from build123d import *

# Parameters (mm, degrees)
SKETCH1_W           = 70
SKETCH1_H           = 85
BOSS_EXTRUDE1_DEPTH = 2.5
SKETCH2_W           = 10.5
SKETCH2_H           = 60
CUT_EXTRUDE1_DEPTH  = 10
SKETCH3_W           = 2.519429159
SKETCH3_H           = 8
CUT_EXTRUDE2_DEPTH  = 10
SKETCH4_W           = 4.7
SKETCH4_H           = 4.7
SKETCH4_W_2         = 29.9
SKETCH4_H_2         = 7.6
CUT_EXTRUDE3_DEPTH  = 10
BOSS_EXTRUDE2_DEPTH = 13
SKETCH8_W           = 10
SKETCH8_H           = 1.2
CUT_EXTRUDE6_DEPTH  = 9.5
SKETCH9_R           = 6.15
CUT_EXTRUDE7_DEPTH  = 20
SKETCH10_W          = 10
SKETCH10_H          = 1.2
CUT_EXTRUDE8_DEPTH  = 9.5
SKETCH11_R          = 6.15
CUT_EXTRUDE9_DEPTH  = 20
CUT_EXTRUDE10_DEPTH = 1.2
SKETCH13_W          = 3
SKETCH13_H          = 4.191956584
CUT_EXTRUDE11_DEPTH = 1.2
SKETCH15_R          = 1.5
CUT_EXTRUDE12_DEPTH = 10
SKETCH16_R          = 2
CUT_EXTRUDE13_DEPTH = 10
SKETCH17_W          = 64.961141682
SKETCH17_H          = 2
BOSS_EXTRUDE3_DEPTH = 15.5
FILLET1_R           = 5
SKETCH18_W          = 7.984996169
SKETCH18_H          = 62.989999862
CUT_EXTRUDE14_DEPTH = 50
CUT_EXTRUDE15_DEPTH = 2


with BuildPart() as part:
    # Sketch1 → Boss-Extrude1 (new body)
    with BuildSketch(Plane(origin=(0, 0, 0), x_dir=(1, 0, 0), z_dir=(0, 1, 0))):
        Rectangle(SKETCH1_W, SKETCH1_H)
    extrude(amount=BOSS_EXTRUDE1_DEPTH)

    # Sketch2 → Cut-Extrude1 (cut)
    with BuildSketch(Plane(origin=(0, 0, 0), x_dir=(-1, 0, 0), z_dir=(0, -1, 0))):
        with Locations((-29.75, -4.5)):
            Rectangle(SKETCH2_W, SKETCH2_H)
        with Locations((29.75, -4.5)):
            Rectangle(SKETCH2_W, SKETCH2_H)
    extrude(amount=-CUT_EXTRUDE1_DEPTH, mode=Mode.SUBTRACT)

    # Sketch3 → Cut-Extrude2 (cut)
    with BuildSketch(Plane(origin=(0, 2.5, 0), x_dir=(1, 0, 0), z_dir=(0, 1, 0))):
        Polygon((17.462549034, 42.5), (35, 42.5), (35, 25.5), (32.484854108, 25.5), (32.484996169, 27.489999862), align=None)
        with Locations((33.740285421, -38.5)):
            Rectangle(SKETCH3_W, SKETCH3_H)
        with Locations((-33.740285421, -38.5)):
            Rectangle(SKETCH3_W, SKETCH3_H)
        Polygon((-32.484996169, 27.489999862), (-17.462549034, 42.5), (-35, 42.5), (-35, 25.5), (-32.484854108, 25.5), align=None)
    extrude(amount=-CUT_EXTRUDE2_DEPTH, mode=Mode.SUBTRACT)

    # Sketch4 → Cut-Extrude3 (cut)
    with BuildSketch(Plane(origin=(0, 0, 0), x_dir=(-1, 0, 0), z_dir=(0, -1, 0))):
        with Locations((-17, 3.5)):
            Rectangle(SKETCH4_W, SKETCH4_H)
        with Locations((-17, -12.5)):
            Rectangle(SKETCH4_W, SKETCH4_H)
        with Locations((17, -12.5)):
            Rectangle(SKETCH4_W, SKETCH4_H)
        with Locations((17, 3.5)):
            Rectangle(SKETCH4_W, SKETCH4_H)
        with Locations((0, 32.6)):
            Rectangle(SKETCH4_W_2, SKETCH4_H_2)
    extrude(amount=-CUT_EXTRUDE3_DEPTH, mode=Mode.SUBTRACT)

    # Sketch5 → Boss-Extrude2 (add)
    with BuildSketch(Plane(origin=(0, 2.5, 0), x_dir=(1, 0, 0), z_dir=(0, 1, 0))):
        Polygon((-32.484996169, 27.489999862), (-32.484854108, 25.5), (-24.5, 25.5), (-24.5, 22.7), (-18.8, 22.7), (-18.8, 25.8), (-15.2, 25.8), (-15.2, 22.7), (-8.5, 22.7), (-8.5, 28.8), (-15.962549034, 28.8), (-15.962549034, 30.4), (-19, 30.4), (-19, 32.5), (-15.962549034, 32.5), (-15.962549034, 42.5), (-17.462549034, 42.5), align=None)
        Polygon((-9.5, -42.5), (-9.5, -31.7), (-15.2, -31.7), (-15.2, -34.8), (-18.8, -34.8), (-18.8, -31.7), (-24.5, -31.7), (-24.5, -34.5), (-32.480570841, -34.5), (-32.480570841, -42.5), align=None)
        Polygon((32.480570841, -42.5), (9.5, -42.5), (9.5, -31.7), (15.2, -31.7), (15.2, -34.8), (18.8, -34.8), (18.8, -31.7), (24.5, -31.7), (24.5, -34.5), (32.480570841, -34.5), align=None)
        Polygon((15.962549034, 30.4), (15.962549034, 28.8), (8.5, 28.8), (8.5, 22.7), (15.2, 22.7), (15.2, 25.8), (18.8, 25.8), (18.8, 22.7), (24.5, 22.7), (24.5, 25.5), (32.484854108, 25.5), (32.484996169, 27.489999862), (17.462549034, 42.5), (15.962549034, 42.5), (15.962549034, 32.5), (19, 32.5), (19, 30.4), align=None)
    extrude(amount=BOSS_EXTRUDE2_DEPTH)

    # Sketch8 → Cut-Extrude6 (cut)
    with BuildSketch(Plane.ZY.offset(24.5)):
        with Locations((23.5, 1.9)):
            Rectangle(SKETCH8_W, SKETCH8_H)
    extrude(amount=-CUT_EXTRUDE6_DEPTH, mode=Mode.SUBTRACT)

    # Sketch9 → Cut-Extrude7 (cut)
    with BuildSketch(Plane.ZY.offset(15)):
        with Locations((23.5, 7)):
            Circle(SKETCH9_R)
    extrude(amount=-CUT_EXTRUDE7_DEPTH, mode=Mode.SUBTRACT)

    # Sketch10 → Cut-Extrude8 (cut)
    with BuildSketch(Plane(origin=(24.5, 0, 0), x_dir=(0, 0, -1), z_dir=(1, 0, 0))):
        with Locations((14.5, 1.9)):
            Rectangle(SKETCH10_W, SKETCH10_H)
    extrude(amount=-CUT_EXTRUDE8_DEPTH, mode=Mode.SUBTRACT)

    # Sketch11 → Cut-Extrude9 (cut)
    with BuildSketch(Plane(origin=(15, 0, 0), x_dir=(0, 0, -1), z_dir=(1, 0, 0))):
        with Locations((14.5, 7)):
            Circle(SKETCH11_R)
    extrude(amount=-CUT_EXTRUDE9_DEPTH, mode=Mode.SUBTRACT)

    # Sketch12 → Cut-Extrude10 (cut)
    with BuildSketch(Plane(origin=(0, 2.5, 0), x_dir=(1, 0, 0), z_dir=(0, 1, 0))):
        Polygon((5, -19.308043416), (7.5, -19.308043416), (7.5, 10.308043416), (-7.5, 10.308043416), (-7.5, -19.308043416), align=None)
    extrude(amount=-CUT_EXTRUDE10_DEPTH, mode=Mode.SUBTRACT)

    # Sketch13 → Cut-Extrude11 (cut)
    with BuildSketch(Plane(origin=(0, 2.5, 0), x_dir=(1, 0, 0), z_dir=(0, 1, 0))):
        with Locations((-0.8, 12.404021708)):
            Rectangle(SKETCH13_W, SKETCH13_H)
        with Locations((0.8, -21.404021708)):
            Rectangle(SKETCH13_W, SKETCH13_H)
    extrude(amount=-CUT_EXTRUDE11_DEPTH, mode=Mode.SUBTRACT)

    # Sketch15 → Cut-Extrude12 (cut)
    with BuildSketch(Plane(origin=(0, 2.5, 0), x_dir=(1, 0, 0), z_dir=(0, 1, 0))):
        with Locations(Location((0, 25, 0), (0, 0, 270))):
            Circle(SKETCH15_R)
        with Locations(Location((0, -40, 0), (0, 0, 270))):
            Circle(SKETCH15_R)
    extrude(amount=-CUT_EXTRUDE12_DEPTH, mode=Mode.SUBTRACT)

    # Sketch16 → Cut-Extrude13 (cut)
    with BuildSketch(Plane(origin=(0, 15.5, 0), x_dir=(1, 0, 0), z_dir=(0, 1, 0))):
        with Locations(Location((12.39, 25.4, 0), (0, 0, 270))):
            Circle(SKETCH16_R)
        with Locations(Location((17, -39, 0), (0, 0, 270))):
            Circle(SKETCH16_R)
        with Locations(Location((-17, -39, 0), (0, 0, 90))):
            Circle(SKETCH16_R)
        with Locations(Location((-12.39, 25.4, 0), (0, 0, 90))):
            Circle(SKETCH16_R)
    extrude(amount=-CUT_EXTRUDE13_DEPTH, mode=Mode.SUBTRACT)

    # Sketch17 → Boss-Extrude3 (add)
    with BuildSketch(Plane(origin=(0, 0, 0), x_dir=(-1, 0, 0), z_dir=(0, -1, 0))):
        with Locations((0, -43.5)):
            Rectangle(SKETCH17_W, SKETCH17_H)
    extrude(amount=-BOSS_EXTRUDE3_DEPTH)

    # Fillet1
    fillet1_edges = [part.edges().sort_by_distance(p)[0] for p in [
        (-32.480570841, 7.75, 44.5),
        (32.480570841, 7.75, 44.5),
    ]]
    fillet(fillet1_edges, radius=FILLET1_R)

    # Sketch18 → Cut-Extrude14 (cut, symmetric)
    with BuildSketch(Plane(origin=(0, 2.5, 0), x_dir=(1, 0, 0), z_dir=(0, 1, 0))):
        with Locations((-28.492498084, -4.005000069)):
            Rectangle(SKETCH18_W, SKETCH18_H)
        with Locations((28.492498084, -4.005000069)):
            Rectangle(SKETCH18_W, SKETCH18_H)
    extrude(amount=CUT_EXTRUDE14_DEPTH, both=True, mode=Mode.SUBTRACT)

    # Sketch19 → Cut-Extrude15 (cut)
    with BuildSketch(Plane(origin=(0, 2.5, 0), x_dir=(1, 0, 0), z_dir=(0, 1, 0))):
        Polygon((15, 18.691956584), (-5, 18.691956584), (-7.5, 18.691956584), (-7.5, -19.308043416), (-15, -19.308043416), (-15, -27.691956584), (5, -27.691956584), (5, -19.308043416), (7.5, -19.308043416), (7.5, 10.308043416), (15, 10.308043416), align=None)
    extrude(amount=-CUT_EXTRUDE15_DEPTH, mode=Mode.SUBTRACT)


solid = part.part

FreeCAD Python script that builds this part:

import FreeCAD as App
import Part
import Sketcher
from FreeCAD import Vector
Q = App.Units.Quantity


def edges_at(feature, points):
    """Names of the edges that pass closest to the given points."""
    edges = feature.Shape.Edges
    near = lambda p: min(range(len(edges)), key=lambda i: edges[i].distToShape(Part.Vertex(*p))[0])
    return sorted({f"Edge{near(p) + 1}" for p in points})


def add_polygon(sketch, points):
    """Adds a closed chain of lines whose ends are joined by coincident constraints."""
    first, n = sketch.GeometryCount, len(points)
    for a, b in zip(points, points[1:] + points[:1]):
        sketch.addGeometry(Part.LineSegment(App.Vector(*a, 0), App.Vector(*b, 0)), False)
    for i in range(n):
        sketch.addConstraint(Sketcher.Constraint("Coincident", first + i, 2, first + (i + 1) % n, 1))

doc = App.newDocument("Part")
body = doc.addObject("PartDesign::Body", "Body")

# Sketch on XZ plane
sketch1 = doc.addObject("Sketcher::SketchObject", "Sketch")
body.addObject(sketch1)
sketch1.AttachmentSupport = (doc.XZ_Plane, [""])
sketch1.MapMode = "FlatFace"
add_polygon(sketch1, [(-35, -42), (-35, 42), (35, 42), (35, -42)])  # lines 0-3
sketch1.addConstraint(Sketcher.Constraint("Vertical", 0))
sketch1.addConstraint(Sketcher.Constraint("Horizontal", 1))
sketch1.addConstraint(Sketcher.Constraint("Vertical", 2))
sketch1.addConstraint(Sketcher.Constraint("Horizontal", 3))
sketch1.addConstraint(Sketcher.Constraint("Symmetric", 0, 2, 2, 2, -1, 1))
sketch1.addConstraint(Sketcher.Constraint("DistanceX", 1, 1, 1, 2, Q("70 mm")))
sketch1.addConstraint(Sketcher.Constraint("DistanceY", 0, 1, 0, 2, Q("85 mm")))
pad1 = doc.addObject("PartDesign::Pad", "Pad")
body.addObject(pad1)
pad1.Profile = sketch1
pad1.Length = 2.5
pad1.Reversed = True

# Sketch on XZ plane
sketch2 = doc.addObject("Sketcher::SketchObject", "Sketch001")
body.addObject(sketch2)
sketch2.AttachmentSupport = (doc.XZ_Plane, [""])
sketch2.MapMode = "FlatFace"
add_polygon(sketch2, [(35, -26), (35, 34), (24, 34), (24, -26)])  # lines 0-3
add_polygon(sketch2, [(-24, -26), (-24, 34), (-35, 34), (-35, -26)])  # lines 4-7
sketch2.addConstraint(Sketcher.Constraint("Vertical", 0))
sketch2.addConstraint(Sketcher.Constraint("Horizontal", 1))
sketch2.addConstraint(Sketcher.Constraint("Vertical", 2))
sketch2.addConstraint(Sketcher.Constraint("Horizontal", 3))
sketch2.addConstraint(Sketcher.Constraint("Vertical", 4))
sketch2.addConstraint(Sketcher.Constraint("Horizontal", 5))
sketch2.addConstraint(Sketcher.Constraint("Vertical", 6))
sketch2.addConstraint(Sketcher.Constraint("Horizontal", 7))
sketch2.addConstraint(Sketcher.Constraint("Symmetric", 1, 2, 4, 2, -2))
sketch2.addConstraint(Sketcher.Constraint("Symmetric", 3, 2, 6, 2, -2))
sketch2.addConstraint(Sketcher.Constraint("DistanceY", 0, 1, 0, 2, Q("60 mm")))
sketch2.addConstraint(Sketcher.Constraint("DistanceX", 1, 2, 1, 1, Q("10.5 mm")))
sketch2.addConstraint(Sketcher.Constraint("DistanceX", -1, 1, 0, 2, Q("35 mm")))
sketch2.addConstraint(Sketcher.Constraint("DistanceY", -1, 1, 0, 2, Q("34.5 mm")))
pocket1 = doc.addObject("PartDesign::Pocket", "Pocket")
body.addObject(pocket1)
pocket1.Profile = sketch2
pocket1.Length = 10

# Sketch on XZ plane
sketch3 = doc.addObject("Sketcher::SketchObject", "Sketch002")
body.addObject(sketch3)
sketch3.AttachmentSupport = (doc.XZ_Plane, [""])
sketch3.MapMode = "FlatFace"
sketch3.AttachmentOffset = App.Placement(Vector(0, 0, -2.5), App.Rotation())
add_polygon(sketch3, [(35, -42.5), (17.5, -42.5), (32.5, -27.5), (32.5, -25.5), (35, -25.5)])  # lines 0-4
add_polygon(sketch3, [(32.5, 34.5), (32.5, 42.5), (35, 42.5), (35, 34.5)])  # lines 5-8
add_polygon(sketch3, [(-35, 34.5), (-35, 42.5), (-32.5, 42.5), (-32.5, 34.5)])  # lines 9-12
add_polygon(sketch3, [(-32.5, -27.5), (-17.5, -42.5), (-35, -42.5), (-35, -25.5), (-32.5, -25.5)])  # lines 13-17
sketch3.addConstraint(Sketcher.Constraint("Horizontal", 0))
sketch3.addConstraint(Sketcher.Constraint("Horizontal", 3))
sketch3.addConstraint(Sketcher.Constraint("Vertical", 4))
sketch3.addConstraint(Sketcher.Constraint("Vertical", 5))
sketch3.addConstraint(Sketcher.Constraint("Horizontal", 6))
sketch3.addConstraint(Sketcher.Constraint("Vertical", 7))
sketch3.addConstraint(Sketcher.Constraint("Horizontal", 8))
sketch3.addConstraint(Sketcher.Constraint("Vertical", 9))
sketch3.addConstraint(Sketcher.Constraint("Horizontal", 10))
sketch3.addConstraint(Sketcher.Constraint("Vertical", 11))
sketch3.addConstraint(Sketcher.Constraint("Horizontal", 12))
sketch3.addConstraint(Sketcher.Constraint("Horizontal", 14))
sketch3.addConstraint(Sketcher.Constraint("Vertical", 15))
sketch3.addConstraint(Sketcher.Constraint("Horizontal", 16))
sketch3.addConstraint(Sketcher.Constraint("Symmetric", 4, 2, 9, 2, -1, 1))
sketch3.addConstraint(Sketcher.Constraint("Symmetric", 6, 2, 14, 2, -1, 1))
sketch3.addConstraint(Sketcher.Constraint("Symmetric", 6, 2, 9, 2, -2))
sketch3.addConstraint(Sketcher.Constraint("Symmetric", 8, 2, 11, 2, -2))
sketch3.addConstraint(Sketcher.Constraint("Symmetric", 2, 2, 16, 2, -2))
sketch3.addConstraint(Sketcher.Constraint("Symmetric", 1, 2, 17, 2, -2))
sketch3.addConstraint(Sketcher.Constraint("Equal", 0, 14))
sketch3.addConstraint(Sketcher.Constraint("DistanceY", 4, 2, 4, 1, Q("17 mm")))
sketch3.addConstraint(Sketcher.Constraint("DistanceY", 5, 1, 5, 2, Q("8 mm")))
sketch3.addConstraint(Sketcher.Constraint("DistanceX", -1, 1, 3, 2, Q("35 mm")))
sketch3.addConstraint(Sketcher.Constraint("DistanceY", 2, 2, 5, 2, Q("68 mm")))
sketch3.addConstraint(Sketcher.Constraint("Distance", 2, Q("1.99 mm")))
sketch3.addConstraint(Sketcher.Constraint("DistanceX", 0, 2, 0, 1, Q("17.537451 mm")))
sketch3.addConstraint(Sketcher.Constraint("DistanceX", 6, 1, 6, 2, Q("2.519429 mm")))
sketch3.addConstraint(Sketcher.Constraint("Distance", 1, Q("21.236149 mm")))
sketch3.addConstraint(Sketcher.Constraint("DistanceX", 3, 1, 3, 2, Q("2.515146 mm")))
pocket2 = doc.addObject("PartDesign::Pocket", "Pocket001")
body.addObject(pocket2)
pocket2.Profile = sketch3
pocket2.Length = 10
pocket2.Reversed = True

# Sketch on XZ plane
sketch4 = doc.addObject("Sketcher::SketchObject", "Sketch003")
body.addObject(sketch4)
sketch4.AttachmentSupport = (doc.XZ_Plane, [""])
sketch4.MapMode = "FlatFace"
add_polygon(sketch4, [(19.4, -5.8), (19.4, -1.1), (14.7, -1.1), (14.7, -5.8)])  # lines 0-3
add_polygon(sketch4, [(19.4, 10.2), (19.4, 14.8), (14.7, 14.8), (14.7, 10.2)])  # lines 4-7
add_polygon(sketch4, [(-14.7, 10.2), (-14.7, 14.8), (-19.4, 14.8), (-19.4, 10.2)])  # lines 8-11
add_polygon(sketch4, [(-14.7, -5.8), (-14.7, -1.1), (-19.4, -1.1), (-19.4, -5.8)])  # lines 12-15
add_polygon(sketch4, [(14.9, -36.4), (14.9, -28.8), (-14.9, -28.8), (-14.9, -36.4)])  # lines 16-19
sketch4.addConstraint(Sketcher.Constraint("Vertical", 0))
sketch4.addConstraint(Sketcher.Constraint("Horizontal", 1))
sketch4.addConstraint(Sketcher.Constraint("Vertical", 2))
sketch4.addConstraint(Sketcher.Constraint("Horizontal", 3))
sketch4.addConstraint(Sketcher.Constraint("Vertical", 4))
sketch4.addConstraint(Sketcher.Constraint("Horizontal", 5))
sketch4.addConstraint(Sketcher.Constraint("Vertical", 6))
sketch4.addConstraint(Sketcher.Constraint("Horizontal", 7))
sketch4.addConstraint(Sketcher.Constraint("Vertical", 8))
sketch4.addConstraint(Sketcher.Constraint("Horizontal", 9))
sketch4.addConstraint(Sketcher.Constraint("Vertical", 10))
sketch4.addConstraint(Sketcher.Constraint("Horizontal", 11))
sketch4.addConstraint(Sketcher.Constraint("Vertical", 12))
sketch4.addConstraint(Sketcher.Constraint("Horizontal", 13))
sketch4.addConstraint(Sketcher.Constraint("Vertical", 14))
sketch4.addConstraint(Sketcher.Constraint("Horizontal", 15))
sketch4.addConstraint(Sketcher.Constraint("Vertical", 16))
sketch4.addConstraint(Sketcher.Constraint("Horizontal", 17))
sketch4.addConstraint(Sketcher.Constraint("Vertical", 18))
sketch4.addConstraint(Sketcher.Constraint("Horizontal", 19))
sketch4.addConstraint(Sketcher.Constraint("Symmetric", 5, 2, 8, 2, -2))
sketch4.addConstraint(Sketcher.Constraint("Symmetric", 7, 2, 10, 2, -2))
sketch4.addConstraint(Sketcher.Constraint("Symmetric", 1, 2, 12, 2, -2))
sketch4.addConstraint(Sketcher.Constraint("Symmetric", 3, 2, 14, 2, -2))
sketch4.addConstraint(Sketcher.Constraint("Vertical", 3, 2, 4, 2))
sketch4.addConstraint(Sketcher.Constraint("Vertical", 2, 2, 5, 2))
sketch4.addConstraint(Sketcher.Constraint("Equal", 15, 0))
sketch4.addConstraint(Sketcher.Constraint("Equal", 2, 4))
sketch4.addConstraint(Sketcher.Constraint("DistanceX", 1, 2, 1, 1, Q("4.7 mm")))
sketch4.addConstraint(Sketcher.Constraint("DistanceX", 17, 2, 17, 1, Q("29.9 mm")))
sketch4.addConstraint(Sketcher.Constraint("DistanceY", 16, 1, 16, 2, Q("7.6 mm")))
sketch4.addConstraint(Sketcher.Constraint("DistanceY", 0, 2, 4, 2, Q("16 mm")))
sketch4.addConstraint(Sketcher.Constraint("DistanceX", 8, 2, 4, 2, Q("34 mm")))
sketch4.addConstraint(Sketcher.Constraint("DistanceY", 16, 2, -1, 1, Q("28.8 mm")))
sketch4.addConstraint(Sketcher.Constraint("DistanceX", 2, 2, 16, 2, Q("0.3 mm")))
sketch4.addConstraint(Sketcher.Constraint("DistanceY", 0, 2, -1, 1, Q("1.15 mm")))
pocket3 = doc.addObject("PartDesign::Pocket", "Pocket002")
body.addObject(pocket3)
pocket3.Profile = sketch4
pocket3.Length = 10

# Sketch on XZ plane
sketch5 = doc.addObject("Sketcher::SketchObject", "Sketch004")
body.addObject(sketch5)
sketch5.AttachmentSupport = (doc.XZ_Plane, [""])
sketch5.MapMode = "FlatFace"
sketch5.AttachmentOffset = App.Placement(Vector(0, 0, -2.5), App.Rotation())
add_polygon(sketch5, [(-32.5, -27.5), (-32.5, -25.5), (-24.5, -25.5), (-24.5, -22.7), (-18.8, -22.7), (-18.8, -25.8), (-15.2, -25.8), (-15.2, -22.7), (-8.5, -22.7), (-8.5, -28.8), (-16, -28.8), (-16, -30.4), (-19, -30.4), (-19, -32.5), (-16, -32.5), (-16, -42.5), (-17.5, -42.5)])  # lines 0-16
add_polygon(sketch5, [(-9.5, 42.5), (-9.5, 31.7), (-15.2, 31.7), (-15.2, 34.8), (-18.8, 34.8), (-18.8, 31.7), (-24.5, 31.7), (-24.5, 34.5), (-32.5, 34.5), (-32.5, 42.5)])  # lines 17-26
add_polygon(sketch5, [(9.5, 42.5), (32.5, 42.5), (32.5, 34.5), (24.5, 34.5), (24.5, 31.7), (18.8, 31.7), (18.8, 34.8), (15.2, 34.8), (15.2, 31.7), (9.5, 31.7)])  # lines 27-36
add_polygon(sketch5, [(16, -30.4), (16, -28.8), (8.5, -28.8), (8.5, -22.7), (15.2, -22.7), (15.2, -25.8), (18.8, -25.8), (18.8, -22.7), (24.5, -22.7), (24.5, -25.5), (32.5, -25.5), (32.5, -27.5), (17.5, -42.5), (16, -42.5), (16, -32.5), (19, -32.5), (19, -30.4)])  # lines 37-53
sketch5.addConstraint(Sketcher.Constraint("Horizontal", 1))
sketch5.addConstraint(Sketcher.Constraint("Vertical", 2))
sketch5.addConstraint(Sketcher.Constraint("Horizontal", 3))
sketch5.addConstraint(Sketcher.Constraint("Vertical", 4))
sketch5.addConstraint(Sketcher.Constraint("Horizontal", 5))
sketch5.addConstraint(Sketcher.Constraint("Vertical", 6))
sketch5.addConstraint(Sketcher.Constraint("Horizontal", 7))
sketch5.addConstraint(Sketcher.Constraint("Vertical", 8))
sketch5.addConstraint(Sketcher.Constraint("Horizontal", 9))
sketch5.addConstraint(Sketcher.Constraint("Vertical", 10))
sketch5.addConstraint(Sketcher.Constraint("Horizontal", 11))
sketch5.addConstraint(Sketcher.Constraint("Vertical", 12))
sketch5.addConstraint(Sketcher.Constraint("Horizontal", 13))
sketch5.addConstraint(Sketcher.Constraint("Vertical", 14))
sketch5.addConstraint(Sketcher.Constraint("Horizontal", 15))
sketch5.addConstraint(Sketcher.Constraint("Vertical", 17))
sketch5.addConstraint(Sketcher.Constraint("Horizontal", 18))
sketch5.addConstraint(Sketcher.Constraint("Vertical", 19))
sketch5.addConstraint(Sketcher.Constraint("Horizontal", 20))
sketch5.addConstraint(Sketcher.Constraint("Vertical", 21))
sketch5.addConstraint(Sketcher.Constraint("Horizontal", 22))
sketch5.addConstraint(Sketcher.Constraint("Vertical", 23))
sketch5.addConstraint(Sketcher.Constraint("Horizontal", 24))
sketch5.addConstraint(Sketcher.Constraint("Vertical", 25))
sketch5.addConstraint(Sketcher.Constraint("Horizontal", 26))
sketch5.addConstraint(Sketcher.Constraint("Horizontal", 27))
sketch5.addConstraint(Sketcher.Constraint("Vertical", 28))
sketch5.addConstraint(Sketcher.Constraint("Horizontal", 29))
sketch5.addConstraint(Sketcher.Constraint("Vertical", 30))
sketch5.addConstraint(Sketcher.Constraint("Horizontal", 31))
sketch5.addConstraint(Sketcher.Constraint("Vertical", 32))
sketch5.addConstraint(Sketcher.Constraint("Horizontal", 33))
sketch5.addConstraint(Sketcher.Constraint("Vertical", 34))
sketch5.addConstraint(Sketcher.Constraint("Horizontal", 35))
sketch5.addConstraint(Sketcher.Constraint("Vertical", 36))
sketch5.addConstraint(Sketcher.Constraint("Vertical", 37))
sketch5.addConstraint(Sketcher.Constraint("Horizontal", 38))
sketch5.addConstraint(Sketcher.Constraint("Vertical", 39))
sketch5.addConstraint(Sketcher.Constraint("Horizontal", 40))
sketch5.addConstraint(Sketcher.Constraint("Vertical", 41))
sketch5.addConstraint(Sketcher.Constraint("Horizontal", 42))
sketch5.addConstraint(Sketcher.Constraint("Vertical", 43))
sketch5.addConstraint(Sketcher.Constraint("Horizontal", 44))
sketch5.addConstraint(Sketcher.Constraint("Vertical", 45))
sketch5.addConstraint(Sketcher.Constraint("Horizontal", 46))
sketch5.addConstraint(Sketcher.Constraint("Horizontal", 49))
sketch5.addConstraint(Sketcher.Constraint("Vertical", 50))
sketch5.addConstraint(Sketcher.Constraint("Horizontal", 51))
sketch5.addConstraint(Sketcher.Constraint("Vertical", 52))
sketch5.addConstraint(Sketcher.Constraint("Horizontal", 53))
sketch5.addConstraint(Sketcher.Constraint("Symmetric", 25, 2, 27, 2, -2))
sketch5.addConstraint(Sketcher.Constraint("Symmetric", 23, 2, 29, 2, -2))
sketch5.addConstraint(Sketcher.Constraint("Symmetric", 21, 2, 31, 2, -2))
sketch5.addConstraint(Sketcher.Constraint("Symmetric", 19, 2, 33, 2, -2))
sketch5.addConstraint(Sketcher.Constraint("Symmetric", 17, 2, 35, 2, -2))
sketch5.addConstraint(Sketcher.Constraint("Symmetric", 9, 2, 37, 2, -2))
sketch5.addConstraint(Sketcher.Constraint("Symmetric", 7, 2, 39, 2, -2))
sketch5.addConstraint(Sketcher.Constraint("Symmetric", 5, 2, 41, 2, -2))
sketch5.addConstraint(Sketcher.Constraint("Symmetric", 3, 2, 43, 2, -2))
sketch5.addConstraint(Sketcher.Constraint("Symmetric", 1, 2, 45, 2, -2))
sketch5.addConstraint(Sketcher.Constraint("Symmetric", 16, 2, 47, 2, -2))
sketch5.addConstraint(Sketcher.Constraint("Symmetric", 15, 2, 48, 2, -2))
sketch5.addConstraint(Sketcher.Constraint("Symmetric", 13, 2, 50, 2, -2))
sketch5.addConstraint(Sketcher.Constraint("Symmetric", 11, 2, 52, 2, -2))
sketch5.addConstraint(Sketcher.Constraint("Horizontal", 3, 2, 6, 2))
sketch5.addConstraint(Sketcher.Constraint("Horizontal", 18, 2, 21, 2))
sketch5.addConstraint(Sketcher.Constraint("Vertical", 10, 2, 13, 2))
sketch5.addConstraint(Sketcher.Constraint("Vertical", 6, 2, 18, 2))
sketch5.addConstraint(Sketcher.Constraint("Vertical", 4, 2, 20, 2))
sketch5.addConstraint(Sketcher.Constraint("Vertical", 2, 2, 22, 2))
sketch5.addConstraint(Sketcher.Constraint("Equal", 3, 18))
sketch5.addConstraint(Sketcher.Constraint("Equal", 1, 46))
sketch5.addConstraint(Sketcher.Constraint("Equal", 6, 19))
sketch5.addConstraint(Sketcher.Constraint("Equal", 2, 23))
sketch5.addConstraint(Sketcher.Constraint("DistanceY", 14, 2, 14, 1, Q("10 mm")))
sketch5.addConstraint(Sketcher.Constraint("DistanceY", 25, 1, 25, 2, Q("8 mm")))
sketch5.addConstraint(Sketcher.Constraint("DistanceX", 3, 1, 3, 2, Q("5.7 mm")))
sketch5.addConstraint(Sketcher.Constraint("DistanceX", 5, 1, 5, 2, Q("3.6 mm")))
sketch5.addConstraint(Sketcher.Constraint("DistanceX", 7, 1, 7, 2, Q("6.7 mm")))
sketch5.addConstraint(Sketcher.Constraint("DistanceX", 15, 2, 15, 1, Q("1.5 mm")))
sketch5.addConstraint(Sketcher.Constraint("DistanceY", 2, 1, 2, 2, Q("2.8 mm")))
sketch5.addConstraint(Sketcher.Constraint("DistanceY", 4, 2, 4, 1, Q("3.1 mm")))
sketch5.addConstraint(Sketcher.Constraint("DistanceY", 8, 2, 8, 1, Q("6.1 mm")))
sketch5.addConstraint(Sketcher.Constraint("DistanceY", 10, 2, 10, 1, Q("1.6 mm")))
sketch5.addConstraint(Sketcher.Constraint("DistanceY", 12, 2, 12, 1, Q("2.1 mm")))
sketch5.addConstraint(Sketcher.Constraint("DistanceX", 11, 2, -1, 1, Q("19 mm")))
sketch5.addConstraint(Sketcher.Constraint("DistanceX", 17, 2, 29, 2, Q("34 mm")))
sketch5.addConstraint(Sketcher.Constraint("DistanceY", 0, 2, -1, 1, Q("25.5 mm")))
sketch5.addConstraint(Sketcher.Constraint("DistanceY", -1, 1, 17, 2, Q("31.7 mm")))
sketch5.addConstraint(Sketcher.Constraint("Distance", 0, Q("1.99 mm")))
sketch5.addConstraint(Sketcher.Constraint("DistanceX", 9, 2, 9, 1, Q("7.462549 mm")))
sketch5.addConstraint(Sketcher.Constraint("DistanceX", 24, 2, 24, 1, Q("7.980571 mm")))
sketch5.addConstraint(Sketcher.Constraint("Distance", 16, Q("21.236149 mm")))
sketch5.addConstraint(Sketcher.Constraint("DistanceX", 1, 1, 1, 2, Q("7.984854 mm")))
pad2 = doc.addObject("PartDesign::Pad", "Pad001")
body.addObject(pad2)
pad2.Profile = sketch5
pad2.Length = 13
pad2.Reversed = True

# Sketch on YZ plane
sketch6 = doc.addObject("Sketcher::SketchObject", "Sketch005")
body.addObject(sketch6)
sketch6.AttachmentSupport = (doc.YZ_Plane, [""])
sketch6.MapMode = "FlatFace"
sketch6.AttachmentOffset = App.Placement(Vector(0, 0, -24.5), App.Rotation())
add_polygon(sketch6, [(2.5, 18.5), (1.3, 18.5), (1.3, 28.5), (2.5, 28.5)])  # lines 0-3
sketch6.addConstraint(Sketcher.Constraint("Horizontal", 0))
sketch6.addConstraint(Sketcher.Constraint("Vertical", 1))
sketch6.addConstraint(Sketcher.Constraint("Horizontal", 2))
sketch6.addConstraint(Sketcher.Constraint("Vertical", 3))
sketch6.addConstraint(Sketcher.Constraint("DistanceY", 1, 1, 1, 2, Q("10 mm")))
sketch6.addConstraint(Sketcher.Constraint("DistanceX", 0, 2, 0, 1, Q("1.2 mm")))
sketch6.addConstraint(Sketcher.Constraint("DistanceX", -1, 1, 0, 2, Q("1.3 mm")))
sketch6.addConstraint(Sketcher.Constraint("DistanceY", -1, 1, 0, 2, Q("18.5 mm")))
pocket4 = doc.addObject("PartDesign::Pocket", "Pocket003")
body.addObject(pocket4)
pocket4.Profile = sketch6
pocket4.Length = 9.5
pocket4.Reversed = True

# Sketch on YZ plane
sketch7 = doc.addObject("Sketcher::SketchObject", "Sketch006")
body.addObject(sketch7)
sketch7.AttachmentSupport = (doc.YZ_Plane, [""])
sketch7.MapMode = "FlatFace"
sketch7.AttachmentOffset = App.Placement(Vector(0, 0, -15), App.Rotation())
sketch7.addGeometry(Part.Circle(Vector(7, 24, 0), Vector(0, 0, 1), 6), False)
sketch7.addConstraint(Sketcher.Constraint("Diameter", 0, Q("12.3 mm")))
sketch7.addConstraint(Sketcher.Constraint("DistanceX", -1, 1, 0, 3, Q("7 mm")))
sketch7.addConstraint(Sketcher.Constraint("DistanceY", -1, 1, 0, 3, Q("23.5 mm")))
pocket5 = doc.addObject("PartDesign::Pocket", "Pocket004")
body.addObject(pocket5)
pocket5.Profile = sketch7
pocket5.Length = 20
pocket5.Reversed = True

# Sketch on YZ plane
sketch8 = doc.addObject("Sketcher::SketchObject", "Sketch007")
body.addObject(sketch8)
sketch8.AttachmentSupport = (doc.YZ_Plane, [""])
sketch8.MapMode = "FlatFace"
sketch8.AttachmentOffset = App.Placement(Vector(0, 0, 24.5), App.Rotation())
add_polygon(sketch8, [(2.5, -9.5), (1.3, -9.5), (1.3, -19.5), (2.5, -19.5)])  # lines 0-3
sketch8.addConstraint(Sketcher.Constraint("Horizontal", 0))
sketch8.addConstraint(Sketcher.Constraint("Vertical", 1))
sketch8.addConstraint(Sketcher.Constraint("Horizontal", 2))
sketch8.addConstraint(Sketcher.Constraint("Vertical", 3))
sketch8.addConstraint(Sketcher.Constraint("DistanceY", 1, 2, 1, 1, Q("10 mm")))
sketch8.addConstraint(Sketcher.Constraint("DistanceX", 0, 2, 0, 1, Q("1.2 mm")))
sketch8.addConstraint(Sketcher.Constraint("DistanceX", -1, 1, 0, 2, Q("1.3 mm")))
sketch8.addConstraint(Sketcher.Constraint("DistanceY", 0, 2, -1, 1, Q("9.5 mm")))
pocket6 = doc.addObject("PartDesign::Pocket", "Pocket005")
body.addObject(pocket6)
pocket6.Profile = sketch8
pocket6.Length = 9.5

# Sketch on YZ plane
sketch9 = doc.addObject("Sketcher::SketchObject", "Sketch008")
body.addObject(sketch9)
sketch9.AttachmentSupport = (doc.YZ_Plane, [""])
sketch9.MapMode = "FlatFace"
sketch9.AttachmentOffset = App.Placement(Vector(0, 0, 15), App.Rotation())
sketch9.addGeometry(Part.Circle(Vector(7, -14, 0), Vector(0, 0, 1), 6), False)
sketch9.addConstraint(Sketcher.Constraint("Diameter", 0, Q("12.3 mm")))
sketch9.addConstraint(Sketcher.Constraint("DistanceX", -1, 1, 0, 3, Q("7 mm")))
sketch9.addConstraint(Sketcher.Constraint("DistanceY", 0, 3, -1, 1, Q("14.5 mm")))
pocket7 = doc.addObject("PartDesign::Pocket", "Pocket006")
body.addObject(pocket7)
pocket7.Profile = sketch9
pocket7.Length = 20

# Sketch on XZ plane
sketch10 = doc.addObject("Sketcher::SketchObject", "Sketch009")
body.addObject(sketch10)
sketch10.AttachmentSupport = (doc.XZ_Plane, [""])
sketch10.MapMode = "FlatFace"
sketch10.AttachmentOffset = App.Placement(Vector(0, 0, -2.5), App.Rotation())
add_polygon(sketch10, [(8, 19), (8, -10), (-8, -10), (-8, 19)])  # lines 0-3
sketch10.addConstraint(Sketcher.Constraint("Vertical", 0))
sketch10.addConstraint(Sketcher.Constraint("Horizontal", 1))
sketch10.addConstraint(Sketcher.Constraint("Vertical", 2))
sketch10.addConstraint(Sketcher.Constraint("Horizontal", 3))
sketch10.addConstraint(Sketcher.Constraint("DistanceX", 1, 2, 1, 1, Q("15 mm")))
sketch10.addConstraint(Sketcher.Constraint("DistanceX", -1, 1, 0, 2, Q("7.5 mm")))
sketch10.addConstraint(Sketcher.Constraint("DistanceY", 0, 2, 0, 1, Q("29.616087 mm")))
sketch10.addConstraint(Sketcher.Constraint("DistanceY", 0, 2, -1, 1, Q("10.308043 mm")))
pocket8 = doc.addObject("PartDesign::Pocket", "Pocket007")
body.addObject(pocket8)
pocket8.Profile = sketch10
pocket8.Length = 1.2
pocket8.Reversed = True

# Sketch on XZ plane
sketch11 = doc.addObject("Sketcher::SketchObject", "Sketch010")
body.addObject(sketch11)
sketch11.AttachmentSupport = (doc.XZ_Plane, [""])
sketch11.MapMode = "FlatFace"
sketch11.AttachmentOffset = App.Placement(Vector(0, 0, -2.5), App.Rotation())
add_polygon(sketch11, [(-2.3, -14.5), (-2.3, -10.3), (0.7, -10.3), (0.7, -14.5)])  # lines 0-3
add_polygon(sketch11, [(-0.7, 19.3), (-0.7, 23.5), (2.3, 23.5), (2.3, 19.3)])  # lines 4-7
sketch11.addConstraint(Sketcher.Constraint("Vertical", 0))
sketch11.addConstraint(Sketcher.Constraint("Horizontal", 1))
sketch11.addConstraint(Sketcher.Constraint("Vertical", 2))
sketch11.addConstraint(Sketcher.Constraint("Horizontal", 3))
sketch11.addConstraint(Sketcher.Constraint("Vertical", 4))
sketch11.addConstraint(Sketcher.Constraint("Horizontal", 5))
sketch11.addConstraint(Sketcher.Constraint("Vertical", 6))
sketch11.addConstraint(Sketcher.Constraint("Horizontal", 7))
sketch11.addConstraint(Sketcher.Constraint("Equal", 3, 5))
sketch11.addConstraint(Sketcher.Constraint("Equal", 2, 4))
sketch11.addConstraint(Sketcher.Constraint("DistanceX", 1, 1, 1, 2, Q("3 mm")))
sketch11.addConstraint(Sketcher.Constraint("DistanceY", 2, 2, 4, 2, Q("38 mm")))
sketch11.addConstraint(Sketcher.Constraint("DistanceX", 0, 2, -1, 1, Q("2.3 mm")))
sketch11.addConstraint(Sketcher.Constraint("DistanceY", 2, 2, -1, 1, Q("14.5 mm")))
sketch11.addConstraint(Sketcher.Constraint("DistanceX", 4, 2, -1, 1, Q("0.7 mm")))
sketch11.addConstraint(Sketcher.Constraint("DistanceY", 0, 1, 0, 2, Q("4.191957 mm")))
pocket9 = doc.addObject("PartDesign::Pocket", "Pocket008")
body.addObject(pocket9)
pocket9.Profile = sketch11
pocket9.Length = 1.2
pocket9.Reversed = True

# Sketch on XZ plane
sketch12 = doc.addObject("Sketcher::SketchObject", "Sketch011")
body.addObject(sketch12)
sketch12.AttachmentSupport = (doc.XZ_Plane, [""])
sketch12.MapMode = "FlatFace"
sketch12.AttachmentOffset = App.Placement(Vector(0, 0, -2.5), App.Rotation())
sketch12.addGeometry(Part.Circle(Vector(0, -25, 0), Vector(0, 0, 1), 1.5), False)
sketch12.addGeometry(Part.Circle(Vector(0, 40, 0), Vector(0, 0, 1), 1.5), False)
sketch12.addConstraint(Sketcher.Constraint("Equal", 0, 1))
sketch12.addConstraint(Sketcher.Constraint("PointOnObject", 0, 3, -2))
sketch12.addConstraint(Sketcher.Constraint("PointOnObject", 1, 3, -2))
sketch12.addConstraint(Sketcher.Constraint("Diameter", 0, Q("3 mm")))
sketch12.addConstraint(Sketcher.Constraint("DistanceY", 0, 3, -1, 1, Q("25 mm")))
sketch12.addConstraint(Sketcher.Constraint("DistanceY", -1, 1, 1, 3, Q("40 mm")))
pocket10 = doc.addObject("PartDesign::Pocket", "Pocket009")
body.addObject(pocket10)
pocket10.Profile = sketch12
pocket10.Length = 10
pocket10.Reversed = True

# Sketch on XZ plane
sketch13 = doc.addObject("Sketcher::SketchObject", "Sketch012")
body.addObject(sketch13)
sketch13.AttachmentSupport = (doc.XZ_Plane, [""])
sketch13.MapMode = "FlatFace"
sketch13.AttachmentOffset = App.Placement(Vector(0, 0, -15.5), App.Rotation())
sketch13.addGeometry(Part.Circle(Vector(12.4, -25.4, 0), Vector(0, 0, 1), 2), False)
sketch13.addGeometry(Part.Circle(Vector(17, 39, 0), Vector(0, 0, 1), 2), False)
sketch13.addGeometry(Part.Circle(Vector(-17, 39, 0), Vector(0, 0, 1), 2), False)
sketch13.addGeometry(Part.Circle(Vector(-12.4, -25.4, 0), Vector(0, 0, 1), 2), False)
sketch13.addConstraint(Sketcher.Constraint("Equal", 0, 1))
sketch13.addConstraint(Sketcher.Constraint("Equal", 1, 2))
sketch13.addConstraint(Sketcher.Constraint("Equal", 2, 3))
sketch13.addConstraint(Sketcher.Constraint("Symmetric", 1, 3, 2, 3, -2))
sketch13.addConstraint(Sketcher.Constraint("Symmetric", 0, 3, 3, 3, -2))
sketch13.addConstraint(Sketcher.Constraint("Diameter", 0, Q("4 mm")))
sketch13.addConstraint(Sketcher.Constraint("DistanceX", -1, 1, 1, 3, Q("17 mm")))
sketch13.addConstraint(Sketcher.Constraint("DistanceY", -1, 1, 1, 3, Q("39 mm")))
sketch13.addConstraint(Sketcher.Constraint("DistanceY", 0, 3, -1, 1, Q("25.4 mm")))
sketch13.addConstraint(Sketcher.Constraint("DistanceX", -1, 1, 0, 3, Q("12.39 mm")))
pocket11 = doc.addObject("PartDesign::Pocket", "Pocket010")
body.addObject(pocket11)
pocket11.Profile = sketch13
pocket11.Length = 10
pocket11.Reversed = True

# Sketch on XZ plane
sketch14 = doc.addObject("Sketcher::SketchObject", "Sketch013")
body.addObject(sketch14)
sketch14.AttachmentSupport = (doc.XZ_Plane, [""])
sketch14.MapMode = "FlatFace"
add_polygon(sketch14, [(32.5, 42.5), (32.5, 44.5), (-32.5, 44.5), (-32.5, 42.5)])  # lines 0-3
sketch14.addConstraint(Sketcher.Constraint("Vertical", 0))
sketch14.addConstraint(Sketcher.Constraint("Horizontal", 1))
sketch14.addConstraint(Sketcher.Constraint("Vertical", 2))
sketch14.addConstraint(Sketcher.Constraint("Horizontal", 3))
sketch14.addConstraint(Sketcher.Constraint("DistanceY", 0, 1, 0, 2, Q("2 mm")))
sketch14.addConstraint(Sketcher.Constraint("DistanceY", -1, 1, 0, 2, Q("44.5 mm")))
sketch14.addConstraint(Sketcher.Constraint("DistanceX", 1, 2, 1, 1, Q("64.961142 mm")))
sketch14.addConstraint(Sketcher.Constraint("DistanceX", -1, 1, 0, 2, Q("32.480571 mm")))
pad3 = doc.addObject("PartDesign::Pad", "Pad002")
body.addObject(pad3)
pad3.Profile = sketch14
pad3.Length = 15.5
pad3.Reversed = True
doc.recompute()

fillet = doc.addObject("PartDesign::Fillet", "Fillet")
body.addObject(fillet)
fillet.Base = (pad3, edges_at(pad3, [(-32.481, 7.75, 44.5), (32.481, 7.75, 44.5)]))
fillet.Radius = 5

# Sketch on XZ plane
sketch15 = doc.addObject("Sketcher::SketchObject", "Sketch014")
body.addObject(sketch15)
sketch15.AttachmentSupport = (doc.XZ_Plane, [""])
sketch15.MapMode = "FlatFace"
sketch15.AttachmentOffset = App.Placement(Vector(0, 0, -2.5), App.Rotation())
add_polygon(sketch15, [(-32, -27), (-32, 36), (-24, 36), (-24, -27)])  # lines 0-3
add_polygon(sketch15, [(24, -27), (24, 36), (32, 36), (32, -27)])  # lines 4-7
sketch15.addConstraint(Sketcher.Constraint("Vertical", 0))
sketch15.addConstraint(Sketcher.Constraint("Horizontal", 1))
sketch15.addConstraint(Sketcher.Constraint("Vertical", 2))
sketch15.addConstraint(Sketcher.Constraint("Horizontal", 3))
sketch15.addConstraint(Sketcher.Constraint("Vertical", 4))
sketch15.addConstraint(Sketcher.Constraint("Horizontal", 5))
sketch15.addConstraint(Sketcher.Constraint("Vertical", 6))
sketch15.addConstraint(Sketcher.Constraint("Horizontal", 7))
sketch15.addConstraint(Sketcher.Constraint("Symmetric", 1, 2, 4, 2, -2))
sketch15.addConstraint(Sketcher.Constraint("Symmetric", 3, 2, 6, 2, -2))
sketch15.addConstraint(Sketcher.Constraint("DistanceX", 1, 2, 4, 2, Q("49 mm")))
sketch15.addConstraint(Sketcher.Constraint("DistanceY", 0, 1, 0, 2, Q("62.99 mm")))
sketch15.addConstraint(Sketcher.Constraint("DistanceY", -1, 1, 0, 2, Q("35.5 mm")))
sketch15.addConstraint(Sketcher.Constraint("DistanceX", 1, 1, 1, 2, Q("7.984996 mm")))
pocket12 = doc.addObject("PartDesign::Pocket", "Pocket011")
body.addObject(pocket12)
pocket12.Profile = sketch15
pocket12.Length = 100
pocket12.Midplane = True

# Sketch on XZ plane
sketch16 = doc.addObject("Sketcher::SketchObject", "Sketch015")
body.addObject(sketch16)
sketch16.AttachmentSupport = (doc.XZ_Plane, [""])
sketch16.MapMode = "FlatFace"
sketch16.AttachmentOffset = App.Placement(Vector(0, 0, -2.5), App.Rotation())
add_polygon(sketch16, [(15, -18.7), (-7.5, -18.7), (-7.5, 19.3), (-15, 19.3), (-15, 27.7), (5, 27.7), (5, 19.3), (7.5, 19.3), (7.5, -10.3), (15, -10.3)])  # lines 0-9
sketch16.addConstraint(Sketcher.Constraint("Horizontal", 0))
sketch16.addConstraint(Sketcher.Constraint("Vertical", 1))
sketch16.addConstraint(Sketcher.Constraint("Horizontal", 2))
sketch16.addConstraint(Sketcher.Constraint("Vertical", 3))
sketch16.addConstraint(Sketcher.Constraint("Horizontal", 4))
sketch16.addConstraint(Sketcher.Constraint("Vertical", 5))
sketch16.addConstraint(Sketcher.Constraint("Horizontal", 6))
sketch16.addConstraint(Sketcher.Constraint("Vertical", 7))
sketch16.addConstraint(Sketcher.Constraint("Horizontal", 8))
sketch16.addConstraint(Sketcher.Constraint("Vertical", 9))
sketch16.addConstraint(Sketcher.Constraint("Symmetric", 1, 2, 6, 2, -2))
sketch16.addConstraint(Sketcher.Constraint("Equal", 2, 8))
sketch16.addConstraint(Sketcher.Constraint("Equal", 5, 9))
sketch16.addConstraint(Sketcher.Constraint("DistanceX", 4, 1, 4, 2, Q("20 mm")))
sketch16.addConstraint(Sketcher.Constraint("DistanceY", 1, 1, 1, 2, Q("38 mm")))
sketch16.addConstraint(Sketcher.Constraint("DistanceX", 0, 2, 0, 1, Q("22.5 mm")))
sketch16.addConstraint(Sketcher.Constraint("DistanceX", 2, 2, 2, 1, Q("7.5 mm")))
sketch16.addConstraint(Sketcher.Constraint("DistanceY", 3, 1, 3, 2, Q("8.383913 mm")))
sketch16.addConstraint(Sketcher.Constraint("DistanceY", 0, 2, -1, 1, Q("18.691957 mm")))
pocket13 = doc.addObject("PartDesign::Pocket", "Pocket012")
body.addObject(pocket13)
pocket13.Profile = sketch16
pocket13.Length = 2
pocket13.Reversed = True

doc.recompute()
